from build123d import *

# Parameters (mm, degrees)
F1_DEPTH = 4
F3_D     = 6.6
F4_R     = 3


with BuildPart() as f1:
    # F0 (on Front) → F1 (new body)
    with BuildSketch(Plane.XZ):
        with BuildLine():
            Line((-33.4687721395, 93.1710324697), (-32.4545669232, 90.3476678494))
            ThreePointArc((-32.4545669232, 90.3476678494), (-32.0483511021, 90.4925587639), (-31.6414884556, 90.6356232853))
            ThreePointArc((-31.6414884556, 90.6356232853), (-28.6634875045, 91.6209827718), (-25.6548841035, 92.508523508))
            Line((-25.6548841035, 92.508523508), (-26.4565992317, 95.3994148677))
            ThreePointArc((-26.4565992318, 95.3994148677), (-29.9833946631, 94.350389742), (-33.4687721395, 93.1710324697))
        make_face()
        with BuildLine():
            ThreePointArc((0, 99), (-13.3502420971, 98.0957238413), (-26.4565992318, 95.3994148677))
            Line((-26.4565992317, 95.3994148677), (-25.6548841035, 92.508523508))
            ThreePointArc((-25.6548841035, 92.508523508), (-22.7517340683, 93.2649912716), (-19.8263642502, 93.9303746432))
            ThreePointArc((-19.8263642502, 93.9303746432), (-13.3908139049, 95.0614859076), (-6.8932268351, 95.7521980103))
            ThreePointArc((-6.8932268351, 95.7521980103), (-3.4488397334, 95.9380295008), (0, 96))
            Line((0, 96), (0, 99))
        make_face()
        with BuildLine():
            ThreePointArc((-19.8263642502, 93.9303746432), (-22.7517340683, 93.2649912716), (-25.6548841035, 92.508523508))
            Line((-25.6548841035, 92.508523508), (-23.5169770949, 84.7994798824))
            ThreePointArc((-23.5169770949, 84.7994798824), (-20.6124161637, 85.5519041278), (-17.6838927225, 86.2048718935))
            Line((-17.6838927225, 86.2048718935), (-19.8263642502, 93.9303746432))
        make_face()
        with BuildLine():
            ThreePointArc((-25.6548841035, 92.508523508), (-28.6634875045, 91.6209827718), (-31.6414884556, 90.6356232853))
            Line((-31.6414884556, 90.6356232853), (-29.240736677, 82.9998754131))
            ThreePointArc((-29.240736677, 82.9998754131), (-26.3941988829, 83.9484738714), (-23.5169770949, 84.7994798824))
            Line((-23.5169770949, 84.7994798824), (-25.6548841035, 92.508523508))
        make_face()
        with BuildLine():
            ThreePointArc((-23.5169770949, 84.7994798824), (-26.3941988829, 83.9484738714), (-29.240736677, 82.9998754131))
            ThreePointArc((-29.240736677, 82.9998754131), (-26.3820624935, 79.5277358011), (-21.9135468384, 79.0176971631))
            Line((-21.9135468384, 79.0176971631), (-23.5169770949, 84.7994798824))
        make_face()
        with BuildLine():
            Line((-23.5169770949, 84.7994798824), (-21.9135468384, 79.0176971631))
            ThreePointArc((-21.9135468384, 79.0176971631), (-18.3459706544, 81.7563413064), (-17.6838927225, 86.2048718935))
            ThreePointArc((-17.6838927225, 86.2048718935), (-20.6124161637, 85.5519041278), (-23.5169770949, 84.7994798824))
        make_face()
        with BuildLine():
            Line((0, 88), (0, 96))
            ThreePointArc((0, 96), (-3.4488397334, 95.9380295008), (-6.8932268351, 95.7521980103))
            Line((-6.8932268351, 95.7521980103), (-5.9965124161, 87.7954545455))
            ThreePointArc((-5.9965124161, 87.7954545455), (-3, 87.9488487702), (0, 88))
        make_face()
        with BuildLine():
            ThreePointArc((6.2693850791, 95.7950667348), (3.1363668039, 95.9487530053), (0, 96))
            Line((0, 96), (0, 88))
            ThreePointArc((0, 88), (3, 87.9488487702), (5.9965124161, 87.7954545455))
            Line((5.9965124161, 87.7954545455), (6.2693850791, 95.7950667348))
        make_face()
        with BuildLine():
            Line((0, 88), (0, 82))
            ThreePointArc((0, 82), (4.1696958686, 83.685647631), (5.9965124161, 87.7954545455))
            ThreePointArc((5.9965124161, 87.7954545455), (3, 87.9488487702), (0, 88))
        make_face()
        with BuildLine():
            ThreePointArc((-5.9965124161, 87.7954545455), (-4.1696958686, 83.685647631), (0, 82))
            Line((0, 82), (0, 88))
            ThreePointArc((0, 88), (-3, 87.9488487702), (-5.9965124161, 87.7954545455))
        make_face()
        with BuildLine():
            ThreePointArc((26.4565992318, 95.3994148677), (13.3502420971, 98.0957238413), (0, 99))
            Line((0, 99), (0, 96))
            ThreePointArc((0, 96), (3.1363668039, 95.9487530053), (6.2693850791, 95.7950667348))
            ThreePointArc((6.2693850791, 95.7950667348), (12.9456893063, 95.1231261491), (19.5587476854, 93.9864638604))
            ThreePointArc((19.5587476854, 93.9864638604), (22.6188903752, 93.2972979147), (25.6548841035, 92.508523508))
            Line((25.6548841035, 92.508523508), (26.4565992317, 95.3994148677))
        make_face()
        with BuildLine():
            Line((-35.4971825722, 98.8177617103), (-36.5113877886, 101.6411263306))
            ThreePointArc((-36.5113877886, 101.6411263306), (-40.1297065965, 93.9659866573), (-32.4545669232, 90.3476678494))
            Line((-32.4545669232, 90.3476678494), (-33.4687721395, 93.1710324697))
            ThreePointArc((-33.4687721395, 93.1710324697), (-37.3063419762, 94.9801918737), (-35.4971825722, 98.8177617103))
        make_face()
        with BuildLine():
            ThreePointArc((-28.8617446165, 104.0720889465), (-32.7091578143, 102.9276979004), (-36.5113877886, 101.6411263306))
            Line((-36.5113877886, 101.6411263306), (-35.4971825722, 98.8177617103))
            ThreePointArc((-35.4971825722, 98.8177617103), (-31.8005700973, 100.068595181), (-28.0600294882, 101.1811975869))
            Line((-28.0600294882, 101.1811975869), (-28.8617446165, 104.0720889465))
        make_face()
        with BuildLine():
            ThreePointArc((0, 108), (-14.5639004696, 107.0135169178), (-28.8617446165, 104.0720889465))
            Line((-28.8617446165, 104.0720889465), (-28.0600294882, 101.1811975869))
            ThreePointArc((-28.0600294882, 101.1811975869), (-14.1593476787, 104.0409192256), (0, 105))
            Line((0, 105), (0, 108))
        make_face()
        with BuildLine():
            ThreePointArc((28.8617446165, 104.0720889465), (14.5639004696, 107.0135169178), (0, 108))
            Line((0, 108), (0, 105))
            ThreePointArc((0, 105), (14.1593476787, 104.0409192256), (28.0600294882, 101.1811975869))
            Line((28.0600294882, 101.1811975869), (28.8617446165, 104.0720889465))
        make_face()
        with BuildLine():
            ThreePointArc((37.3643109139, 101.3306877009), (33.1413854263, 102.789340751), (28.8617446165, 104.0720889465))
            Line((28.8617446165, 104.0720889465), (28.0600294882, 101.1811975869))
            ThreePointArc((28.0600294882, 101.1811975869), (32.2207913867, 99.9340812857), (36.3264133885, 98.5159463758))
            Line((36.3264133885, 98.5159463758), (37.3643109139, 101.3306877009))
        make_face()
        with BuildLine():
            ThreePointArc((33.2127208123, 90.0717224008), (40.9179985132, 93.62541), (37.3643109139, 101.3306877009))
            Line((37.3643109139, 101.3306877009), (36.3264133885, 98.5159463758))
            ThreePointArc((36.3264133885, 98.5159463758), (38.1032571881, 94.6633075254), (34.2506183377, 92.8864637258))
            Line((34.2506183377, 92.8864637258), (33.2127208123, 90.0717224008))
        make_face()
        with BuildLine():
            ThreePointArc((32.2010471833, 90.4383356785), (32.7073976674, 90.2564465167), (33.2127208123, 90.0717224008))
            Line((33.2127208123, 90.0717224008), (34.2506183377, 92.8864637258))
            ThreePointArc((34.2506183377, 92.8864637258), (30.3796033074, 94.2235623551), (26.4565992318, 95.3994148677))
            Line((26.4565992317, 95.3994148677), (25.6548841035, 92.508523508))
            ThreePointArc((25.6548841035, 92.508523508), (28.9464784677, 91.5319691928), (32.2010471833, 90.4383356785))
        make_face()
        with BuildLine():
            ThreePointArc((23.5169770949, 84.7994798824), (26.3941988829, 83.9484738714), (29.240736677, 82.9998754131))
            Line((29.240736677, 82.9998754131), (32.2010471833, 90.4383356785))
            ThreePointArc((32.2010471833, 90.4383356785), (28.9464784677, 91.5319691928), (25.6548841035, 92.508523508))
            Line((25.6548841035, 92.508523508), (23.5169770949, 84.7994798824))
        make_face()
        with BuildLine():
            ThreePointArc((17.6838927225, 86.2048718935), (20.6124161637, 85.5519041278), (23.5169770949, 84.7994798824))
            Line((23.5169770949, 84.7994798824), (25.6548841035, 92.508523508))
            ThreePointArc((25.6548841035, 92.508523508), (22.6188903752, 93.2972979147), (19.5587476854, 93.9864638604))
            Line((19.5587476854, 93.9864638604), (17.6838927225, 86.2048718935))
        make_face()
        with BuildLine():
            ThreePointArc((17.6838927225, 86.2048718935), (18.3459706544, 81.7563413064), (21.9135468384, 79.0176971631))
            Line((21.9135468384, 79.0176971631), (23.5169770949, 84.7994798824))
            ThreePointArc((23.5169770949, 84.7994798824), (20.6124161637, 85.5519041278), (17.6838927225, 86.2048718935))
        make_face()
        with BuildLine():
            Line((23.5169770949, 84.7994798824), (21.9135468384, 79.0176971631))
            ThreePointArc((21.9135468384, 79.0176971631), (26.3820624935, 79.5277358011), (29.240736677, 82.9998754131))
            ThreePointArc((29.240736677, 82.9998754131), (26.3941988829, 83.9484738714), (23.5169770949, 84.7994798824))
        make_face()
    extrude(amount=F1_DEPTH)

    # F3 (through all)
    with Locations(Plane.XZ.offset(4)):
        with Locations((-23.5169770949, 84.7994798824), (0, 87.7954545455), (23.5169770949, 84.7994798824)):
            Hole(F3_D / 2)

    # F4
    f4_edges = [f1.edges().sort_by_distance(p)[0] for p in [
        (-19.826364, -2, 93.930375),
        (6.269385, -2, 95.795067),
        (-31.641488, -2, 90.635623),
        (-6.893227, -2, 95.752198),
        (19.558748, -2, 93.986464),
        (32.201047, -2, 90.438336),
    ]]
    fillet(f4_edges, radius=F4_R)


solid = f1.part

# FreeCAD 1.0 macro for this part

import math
import FreeCAD as App
import Part
import Sketcher

V = App.Vector
Q = App.Units.Quantity


def edges_at(feature, points):
    """Names of the edges that pass closest to the given points."""
    edges = feature.Shape.Edges
    near = lambda p: min(range(len(edges)), key=lambda i: edges[i].distToShape(Part.Vertex(*p))[0])
    return sorted({f"Edge{near(p) + 1}" for p in points})

doc = App.newDocument("Part")
body = doc.addObject("PartDesign::Body", "Body")

# Sketch on XZ plane
sketch1 = body.newObject("Sketcher::SketchObject", "Sketch")
sketch1.AttachmentSupport = (doc.getObject("XZ_Plane"), [""])
sketch1.MapMode = "FlatFace"
sketch1.addGeometry([
    Part.ArcOfCircle(Part.Circle(V(0, 0, 0), V(0, 0, 1), 96), math.radians(109.24), math.radians(109.76)),  # 0
    Part.LineSegment(V(-31.6, 90.6, 0), V(-29.2, 83, 0)),  # 1
    Part.ArcOfCircle(Part.Circle(V(-23.5, 84.8, 0), V(0, 0, 1), 6), math.radians(-163), math.radians(-74)),  # 2
    Part.ArcOfCircle(Part.Circle(V(-23.5, 84.8, 0), V(0, 0, 1), 6), math.radians(-74), math.radians(14)),  # 3
    Part.LineSegment(V(-17.7, 86.2, 0), V(-19.8, 93.9, 0)),  # 4
    Part.ArcOfCircle(Part.Circle(V(0, 0, 0), V(0, 0, 1), 96), math.radians(94.12), math.radians(101.92)),  # 5
    Part.LineSegment(V(-6.9, 95.8, 0), V(-6, 87.8, 0)),  # 6
    Part.ArcOfCircle(Part.Circle(V(0, 88, 0), V(0, 0, 1), 6), math.radians(-178), math.radians(-90)),  # 7
    Part.ArcOfCircle(Part.Circle(V(0, 88, 0), V(0, 0, 1), 6), math.radians(-90), math.radians(-2)),  # 8
    Part.LineSegment(V(6, 87.8, 0), V(6.3, 95.8, 0)),  # 9
    Part.ArcOfCircle(Part.Circle(V(0, 0, 0), V(0, 0, 1), 96), math.radians(78.24), math.radians(86.26)),  # 10
    Part.LineSegment(V(19.6, 94, 0), V(17.7, 86.2, 0)),  # 11
    Part.ArcOfCircle(Part.Circle(V(23.5, 84.8, 0), V(0, 0, 1), 6), math.radians(166), math.radians(254)),  # 12
    Part.ArcOfCircle(Part.Circle(V(23.5, 84.8, 0), V(0, 0, 1), 6), math.radians(-106), math.radians(-17)),  # 13
    Part.LineSegment(V(29.2, 83, 0), V(32.2, 90.4, 0)),  # 14
    Part.ArcOfCircle(Part.Circle(V(0, 0, 0), V(0, 0, 1), 96), math.radians(69.76), math.radians(70.4)),  # 15
    Part.ArcOfCircle(Part.Circle(V(35.3, 95.7, 0), V(0, 0, 1), 6), math.radians(-110), math.radians(70)),  # 16
    Part.ArcOfCircle(Part.Circle(V(0, 0, 0), V(0, 0, 1), 108), math.radians(69.76), math.radians(74.5)),  # 17
    Part.ArcOfCircle(Part.Circle(V(0, 0, 0), V(0, 0, 1), 108), math.radians(74.5), math.radians(90)),  # 18
    Part.ArcOfCircle(Part.Circle(V(0, 0, 0), V(0, 0, 1), 108), math.radians(90), math.radians(105.5)),  # 19
    Part.ArcOfCircle(Part.Circle(V(0, 0, 0), V(0, 0, 1), 108), math.radians(105.5), math.radians(109.76)),  # 20
    Part.ArcOfCircle(Part.Circle(V(-34.5, 96, 0), V(0, 0, 1), 6), math.radians(110), math.radians(290)),  # 21
    Part.ArcOfCircle(Part.Circle(V(0, 0, 0), V(0, 0, 1), 99), math.radians(74.5), math.radians(90)),  # 22
    Part.ArcOfCircle(Part.Circle(V(0, 0, 0), V(0, 0, 1), 99), math.radians(90), math.radians(105.5)),  # 23
    Part.ArcOfCircle(Part.Circle(V(0, 0, 0), V(0, 0, 1), 99), math.radians(105.5), math.radians(109.76)),  # 24
    Part.ArcOfCircle(Part.Circle(V(-34.5, 96, 0), V(0, 0, 1), 3), math.radians(110), math.radians(290)),  # 25
    Part.ArcOfCircle(Part.Circle(V(0, 0, 0), V(0, 0, 1), 105), math.radians(105.5), math.radians(109.76)),  # 26
    Part.ArcOfCircle(Part.Circle(V(0, 0, 0), V(0, 0, 1), 105), math.radians(90), math.radians(105.5)),  # 27
    Part.ArcOfCircle(Part.Circle(V(0, 0, 0), V(0, 0, 1), 105), math.radians(74.5), math.radians(90)),  # 28
    Part.ArcOfCircle(Part.Circle(V(0, 0, 0), V(0, 0, 1), 105), math.radians(69.76), math.radians(74.5)),  # 29
    Part.ArcOfCircle(Part.Circle(V(35.3, 95.7, 0), V(0, 0, 1), 3), math.radians(-110), math.radians(70)),  # 30
    Part.ArcOfCircle(Part.Circle(V(0, 0, 0), V(0, 0, 1), 99), math.radians(69.76), math.radians(74.5)),  # 31
], False)
sketch1.addConstraint([
    Sketcher.Constraint("Coincident", 0, 1, 1, 1),
    Sketcher.Constraint("Tangent", 1, 2, 2, 1),
    Sketcher.Constraint("Tangent", 2, 2, 3, 1),
    Sketcher.Constraint("Coincident", 3, 2, 4, 1),
    Sketcher.Constraint("Coincident", 4, 2, 5, 2),
    Sketcher.Constraint("Coincident", 5, 1, 6, 1),
    Sketcher.Constraint("Coincident", 6, 2, 7, 1),
    Sketcher.Constraint("Tangent", 7, 2, 8, 1),
    Sketcher.Constraint("Tangent", 8, 2, 9, 1),
    Sketcher.Constraint("Coincident", 9, 2, 10, 2),
    Sketcher.Constraint("Coincident", 10, 1, 11, 1),
    Sketcher.Constraint("Tangent", 11, 2, 12, 1),
    Sketcher.Constraint("Tangent", 12, 2, 13, 1),
    Sketcher.Constraint("Coincident", 13, 2, 14, 1),
    Sketcher.Constraint("Coincident", 14, 2, 15, 2),
    Sketcher.Constraint("Tangent", 15, 1, 16, 1),
    Sketcher.Constraint("Tangent", 16, 2, 17, 1),
    Sketcher.Constraint("Tangent", 17, 2, 18, 1),
    Sketcher.Constraint("Tangent", 18, 2, 19, 1),
    Sketcher.Constraint("Tangent", 19, 2, 20, 1),
    Sketcher.Constraint("Tangent", 20, 2, 21, 1),
    Sketcher.Constraint("Tangent", 21, 2, 0, 2),
    Sketcher.Constraint("Tangent", 22, 2, 23, 1),
    Sketcher.Constraint("Tangent", 23, 2, 24, 1),
    Sketcher.Constraint("Tangent", 24, 2, 25, 2),
    Sketcher.Constraint("Tangent", 25, 1, 26, 2),
    Sketcher.Constraint("Tangent", 26, 1, 27, 2),
    Sketcher.Constraint("Tangent", 27, 1, 28, 2),
    Sketcher.Constraint("Tangent", 28, 1, 29, 2),
    Sketcher.Constraint("Tangent", 29, 1, 30, 2),
    Sketcher.Constraint("Tangent", 30, 1, 31, 1),
    Sketcher.Constraint("Tangent", 31, 2, 22, 1),
    Sketcher.Constraint("Coincident", 0, 3, -1, 1),
    Sketcher.Constraint("Coincident", 5, 3, -1, 1),
    Sketcher.Constraint("Coincident", 10, 3, -1, 1),
    Sketcher.Constraint("Coincident", 15, 3, -1, 1),
    Sketcher.Constraint("Coincident", 17, 3, -1, 1),
    Sketcher.Constraint("Coincident", 19, 3, -1, 1),
    Sketcher.Constraint("Coincident", 22, 3, -1, 1),
    Sketcher.Constraint("Coincident", 24, 3, -1, 1),
    Sketcher.Constraint("Coincident", 26, 3, -1, 1),
    Sketcher.Constraint("Coincident", 28, 3, -1, 1),
    Sketcher.Constraint("Coincident", 25, 3, 21, 3),
    Sketcher.Constraint("Coincident", 30, 3, 16, 3),
    Sketcher.Constraint("Equal", 2, 3),
    Sketcher.Constraint("Equal", 0, 5),
    Sketcher.Constraint("Equal", 3, 7),
    Sketcher.Constraint("Equal", 7, 8),
    Sketcher.Constraint("Equal", 5, 10),
    Sketcher.Constraint("Equal", 8, 12),
    Sketcher.Constraint("Equal", 12, 13),
    Sketcher.Constraint("Equal", 10, 15),
    Sketcher.Constraint("Equal", 13, 16),
    Sketcher.Constraint("Equal", 19, 20),
    Sketcher.Constraint("Equal", 28, 29),
    Sketcher.Constraint("Symmetric", 2, 3, 12, 3, -2),
    Sketcher.Constraint("Symmetric", 6, 2, 8, 2, -2),
    Sketcher.Constraint("PointOnObject", 7, 2, -2),
    Sketcher.Constraint("PointOnObject", 18, 2, -2),
    Sketcher.Constraint("PointOnObject", 22, 2, -2),
    Sketcher.Constraint("PointOnObject", 27, 1, -2),
    Sketcher.Constraint("Horizontal", 3, 2, 11, 2),
    Sketcher.Constraint("Horizontal", 2, 2, 12, 2),
    Sketcher.Constraint("Horizontal", 1, 2, 13, 2),
    Sketcher.Constraint("Horizontal", 17, 2, 19, 2),
    Sketcher.Constraint("Horizontal", 26, 1, 28, 1),
    Sketcher.Constraint("Horizontal", 23, 2, 31, 2),
    Sketcher.Constraint("Equal", 1, 9),
    Sketcher.Constraint("Equal", 9, 11),
    Sketcher.Constraint("Radius", 0, 95.999999),
    Sketcher.Constraint("Radius", 2, 6.0),
    Sketcher.Constraint("Radius", 22, 99.0),
    Sketcher.Constraint("DistanceY", -1, 1, 7, 3, 88.0),
    Sketcher.Constraint("Angle", 4, Q("105.5 deg")),
    Sketcher.Constraint("DistanceX", 21, 3, 2, 3, 10.966),
    Sketcher.Constraint("DistanceY", -1, 1, 5, 1, 95.752198),
    Sketcher.Constraint("DistanceX", 23, 2, -1, 1, 26.456599),
    Sketcher.Constraint("DistanceY", 2, 2, 21, 3, 16.9767),
    Sketcher.Constraint("DistanceY", 1, 2, 4, 2, 10.930499),
    Sketcher.Constraint("DistanceX", 10, 1, 12, 2, 2.354799),
    Sketcher.Constraint("DistanceY", 16, 2, 17, 2, 2.741401),
    Sketcher.Constraint("DistanceY", 21, 3, 26, 1, 5.1868),
    Sketcher.Constraint("Distance", 4, 8.01708),
    Sketcher.Constraint("Distance", 14, 8.005881),
    Sketcher.Constraint("DistanceX", -1, 1, 15, 1, 33.212721),
])
pad1 = body.newObject("PartDesign::Pad", "Pad")
pad1.Profile = sketch1
pad1.Length = 4

# Sketch on XZ plane
sketch2 = body.newObject("Sketcher::SketchObject", "Sketch001")
sketch2.AttachmentSupport = (doc.getObject("XZ_Plane"), [""])
sketch2.MapMode = "FlatFace"
sketch2.AttachmentOffset = App.Placement(V(0, 0, 4), App.Rotation())
sketch2.addGeometry([
    Part.Circle(V(-23.5, 84.8, 0), V(0, 0, 1), 3.3),
    Part.Circle(V(0, 87.8, 0), V(0, 0, 1), 3.3),
    Part.Circle(V(23.5, 84.8, 0), V(0, 0, 1), 3.3),
], False)
sketch2.addConstraint([
    Sketcher.Constraint("Equal", 0, 1),
    Sketcher.Constraint("Equal", 1, 2),
    Sketcher.Constraint("Symmetric", 0, 3, 2, 3, -2),
    Sketcher.Constraint("PointOnObject", 1, 3, -2),
    Sketcher.Constraint("Diameter", 0, 6.6),
    Sketcher.Constraint("DistanceY", -1, 1, 0, 3, 84.79948),
    Sketcher.Constraint("DistanceX", 0, 3, -1, 1, 23.516977),
    Sketcher.Constraint("DistanceY", -1, 1, 1, 3, 87.795455),
])
doc.recompute()
hole = body.newObject("PartDesign::Hole", "Hole")
hole.Profile = sketch2
hole.ThreadType = "None"
hole.Diameter = 6.6
hole.DepthType = "ThroughAll"
doc.recompute()

fillet = body.newObject("PartDesign::Fillet", "Fillet")
fillet.Base = (hole, edges_at(hole, [
    (-19.826, -2, 93.93),
    (6.269, -2, 95.795),
    (-31.641, -2, 90.636),
    (-6.893, -2, 95.752),
    (19.559, -2, 93.986),
    (32.201, -2, 90.438),
]))
fillet.Radius = 3

doc.recompute()
